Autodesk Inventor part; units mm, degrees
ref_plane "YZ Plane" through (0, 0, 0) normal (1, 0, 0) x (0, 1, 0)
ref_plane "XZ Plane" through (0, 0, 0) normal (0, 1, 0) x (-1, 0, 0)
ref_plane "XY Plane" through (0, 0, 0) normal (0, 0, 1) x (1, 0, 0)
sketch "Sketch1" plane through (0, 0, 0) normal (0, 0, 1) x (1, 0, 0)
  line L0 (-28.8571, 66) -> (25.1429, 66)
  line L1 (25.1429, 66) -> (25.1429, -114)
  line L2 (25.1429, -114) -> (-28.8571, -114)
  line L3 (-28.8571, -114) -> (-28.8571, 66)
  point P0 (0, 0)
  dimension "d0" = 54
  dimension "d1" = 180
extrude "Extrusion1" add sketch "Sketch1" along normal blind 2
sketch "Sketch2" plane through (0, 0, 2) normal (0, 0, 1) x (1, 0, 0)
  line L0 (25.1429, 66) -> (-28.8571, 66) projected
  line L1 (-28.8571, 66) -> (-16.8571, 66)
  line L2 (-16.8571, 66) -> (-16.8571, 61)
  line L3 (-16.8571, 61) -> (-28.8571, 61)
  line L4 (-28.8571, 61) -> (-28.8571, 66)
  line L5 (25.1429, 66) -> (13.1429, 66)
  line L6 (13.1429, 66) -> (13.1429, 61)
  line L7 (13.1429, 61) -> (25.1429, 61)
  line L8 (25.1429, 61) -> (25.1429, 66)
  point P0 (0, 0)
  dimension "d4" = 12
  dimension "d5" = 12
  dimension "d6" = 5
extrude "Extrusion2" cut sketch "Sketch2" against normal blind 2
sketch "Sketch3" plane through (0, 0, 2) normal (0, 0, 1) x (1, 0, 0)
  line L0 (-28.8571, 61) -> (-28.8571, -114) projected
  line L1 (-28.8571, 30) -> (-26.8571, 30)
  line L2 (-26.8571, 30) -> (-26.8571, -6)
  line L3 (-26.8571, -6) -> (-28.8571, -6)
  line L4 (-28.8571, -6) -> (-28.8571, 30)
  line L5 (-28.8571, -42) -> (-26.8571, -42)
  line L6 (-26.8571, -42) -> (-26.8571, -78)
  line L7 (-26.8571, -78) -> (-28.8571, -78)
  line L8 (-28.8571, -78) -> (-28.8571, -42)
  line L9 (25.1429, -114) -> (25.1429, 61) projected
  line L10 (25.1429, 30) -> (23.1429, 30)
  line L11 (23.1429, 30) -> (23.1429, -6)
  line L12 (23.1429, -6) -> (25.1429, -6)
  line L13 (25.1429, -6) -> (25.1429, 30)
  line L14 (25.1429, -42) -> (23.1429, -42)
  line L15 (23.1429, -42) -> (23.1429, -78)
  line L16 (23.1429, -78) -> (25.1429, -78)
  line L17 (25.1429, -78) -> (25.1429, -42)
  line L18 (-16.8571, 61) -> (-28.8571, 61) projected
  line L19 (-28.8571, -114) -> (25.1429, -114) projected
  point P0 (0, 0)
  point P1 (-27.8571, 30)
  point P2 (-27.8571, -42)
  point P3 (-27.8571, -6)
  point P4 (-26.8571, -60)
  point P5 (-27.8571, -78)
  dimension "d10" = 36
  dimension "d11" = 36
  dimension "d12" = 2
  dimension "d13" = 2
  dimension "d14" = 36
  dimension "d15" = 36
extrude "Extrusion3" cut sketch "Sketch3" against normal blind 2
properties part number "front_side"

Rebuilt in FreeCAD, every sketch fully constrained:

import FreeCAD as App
import Part
import Sketcher

V = App.Vector
Q = App.Units.Quantity


def add_polygon(sketch, points):
    """Adds a closed chain of lines whose ends are joined by coincident constraints."""
    first, n = sketch.GeometryCount, len(points)
    for a, b in zip(points, points[1:] + points[:1]):
        sketch.addGeometry(Part.LineSegment(App.Vector(*a, 0), App.Vector(*b, 0)), False)
    for i in range(n):
        sketch.addConstraint(Sketcher.Constraint("Coincident", first + i, 2, first + (i + 1) % n, 1))

doc = App.newDocument("Part")
body = doc.addObject("PartDesign::Body", "Body")

sketch1 = body.newObject("Sketcher::SketchObject", "Sketch")
sketch1.AttachmentSupport = (doc.getObject("XY_Plane"), [""])
sketch1.MapMode = "FlatFace"
add_polygon(sketch1, [(25, 66), (-29, 66), (-29, -114), (25, -114)])
sketch1.addConstraint(Sketcher.Constraint("Horizontal", 0))
sketch1.addConstraint(Sketcher.Constraint("Vertical", 1))
sketch1.addConstraint(Sketcher.Constraint("Horizontal", 2))
sketch1.addConstraint(Sketcher.Constraint("Vertical", 3))
sketch1.addConstraint(Sketcher.Constraint("DistanceX", 0, 2, 0, 1, Q("54 mm")))
sketch1.addConstraint(Sketcher.Constraint("DistanceY", 1, 2, 1, 1, Q("180 mm")))
sketch1.addConstraint(Sketcher.Constraint("DistanceY", -1, 1, 0, 2, Q("66 mm")))
sketch1.addConstraint(Sketcher.Constraint("DistanceX", 0, 2, -1, 1, Q("28.857 mm")))
pad1 = body.newObject("PartDesign::Pad", "Pad")
pad1.Profile = sketch1
pad1.Length = 2

sketch2 = body.newObject("Sketcher::SketchObject", "Sketch001")
sketch2.AttachmentSupport = (doc.getObject("XY_Plane"), [""])
sketch2.MapMode = "FlatFace"
sketch2.AttachmentOffset = App.Placement(V(0, 0, 2), App.Rotation())
add_polygon(sketch2, [(25, 61), (25, 66), (13, 66), (13, 61)])
add_polygon(sketch2, [(-17, 61), (-17, 66), (-29, 66), (-29, 61)])
sketch2.addConstraint(Sketcher.Constraint("Vertical", 0))
sketch2.addConstraint(Sketcher.Constraint("Horizontal", 1))
sketch2.addConstraint(Sketcher.Constraint("Vertical", 2))
sketch2.addConstraint(Sketcher.Constraint("Horizontal", 3))
sketch2.addConstraint(Sketcher.Constraint("Vertical", 4))
sketch2.addConstraint(Sketcher.Constraint("Horizontal", 5))
sketch2.addConstraint(Sketcher.Constraint("Vertical", 6))
sketch2.addConstraint(Sketcher.Constraint("Horizontal", 7))
sketch2.addConstraint(Sketcher.Constraint("Horizontal", 1, 2, 4, 2))
sketch2.addConstraint(Sketcher.Constraint("Horizontal", 3, 2, 6, 2))
sketch2.addConstraint(Sketcher.Constraint("Equal", 3, 5))
sketch2.addConstraint(Sketcher.Constraint("DistanceX", 1, 2, 1, 1, Q("12 mm")))
sketch2.addConstraint(Sketcher.Constraint("DistanceY", 0, 1, 0, 2, Q("5 mm")))
sketch2.addConstraint(Sketcher.Constraint("DistanceY", -1, 1, 0, 2, Q("66 mm")))
sketch2.addConstraint(Sketcher.Constraint("DistanceX", 4, 2, 1, 2, Q("30 mm")))
sketch2.addConstraint(Sketcher.Constraint("DistanceX", -1, 1, 0, 2, Q("25.143 mm")))
pocket1 = body.newObject("PartDesign::Pocket", "Pocket")
pocket1.Profile = sketch2
pocket1.Length = 2

sketch3 = body.newObject("Sketcher::SketchObject", "Sketch002")
sketch3.AttachmentSupport = (doc.getObject("XY_Plane"), [""])
sketch3.MapMode = "FlatFace"
sketch3.AttachmentOffset = App.Placement(V(0, 0, 2), App.Rotation())
add_polygon(sketch3, [(-26.9, 30), (-28.9, 30), (-28.9, -6), (-26.9, -6)])
add_polygon(sketch3, [(23.1, -6), (25.1, -6), (25.1, 30), (23.1, 30)])
add_polygon(sketch3, [(23.1, -78), (25.1, -78), (25.1, -42), (23.1, -42)])
add_polygon(sketch3, [(-26.9, -42), (-28.9, -42), (-28.9, -78), (-26.9, -78)])
sketch3.addConstraint(Sketcher.Constraint("Horizontal", 0))
sketch3.addConstraint(Sketcher.Constraint("Vertical", 1))
sketch3.addConstraint(Sketcher.Constraint("Horizontal", 2))
sketch3.addConstraint(Sketcher.Constraint("Vertical", 3))
sketch3.addConstraint(Sketcher.Constraint("Horizontal", 4))
sketch3.addConstraint(Sketcher.Constraint("Vertical", 5))
sketch3.addConstraint(Sketcher.Constraint("Horizontal", 6))
sketch3.addConstraint(Sketcher.Constraint("Vertical", 7))
sketch3.addConstraint(Sketcher.Constraint("Horizontal", 8))
sketch3.addConstraint(Sketcher.Constraint("Vertical", 9))
sketch3.addConstraint(Sketcher.Constraint("Horizontal", 10))
sketch3.addConstraint(Sketcher.Constraint("Vertical", 11))
sketch3.addConstraint(Sketcher.Constraint("Horizontal", 12))
sketch3.addConstraint(Sketcher.Constraint("Vertical", 13))
sketch3.addConstraint(Sketcher.Constraint("Horizontal", 14))
sketch3.addConstraint(Sketcher.Constraint("Vertical", 15))
sketch3.addConstraint(Sketcher.Constraint("Horizontal", 2, 2, 4, 2))
sketch3.addConstraint(Sketcher.Constraint("Horizontal", 3, 2, 5, 2))
sketch3.addConstraint(Sketcher.Constraint("Horizontal", 10, 2, 12, 2))
sketch3.addConstraint(Sketcher.Constraint("Horizontal", 11, 2, 13, 2))
sketch3.addConstraint(Sketcher.Constraint("Vertical", 5, 2, 8, 2))
sketch3.addConstraint(Sketcher.Constraint("Vertical", 7, 2, 10, 2))
sketch3.addConstraint(Sketcher.Constraint("Vertical", 1, 2, 12, 2))
sketch3.addConstraint(Sketcher.Constraint("Vertical", 3, 2, 14, 2))
sketch3.addConstraint(Sketcher.Constraint("Equal", 2, 4))
sketch3.addConstraint(Sketcher.Constraint("Equal", 7, 9))
sketch3.addConstraint(Sketcher.Constraint("DistanceX", 0, 2, 0, 1, Q("2 mm")))
sketch3.addConstraint(Sketcher.Constraint("DistanceY", 1, 2, 1, 1, Q("36 mm")))
sketch3.addConstraint(Sketcher.Constraint("DistanceY", 9, 2, 4, 2, Q("36 mm")))
sketch3.addConstraint(Sketcher.Constraint("DistanceY", -1, 1, 0, 2, Q("30 mm")))
sketch3.addConstraint(Sketcher.Constraint("DistanceX", 2, 2, 4, 2, Q("52 mm")))
sketch3.addConstraint(Sketcher.Constraint("DistanceX", 0, 2, -1, 1, Q("28.857 mm")))
pocket2 = body.newObject("PartDesign::Pocket", "Pocket001")
pocket2.Profile = sketch3
pocket2.Length = 2

doc.recompute()
